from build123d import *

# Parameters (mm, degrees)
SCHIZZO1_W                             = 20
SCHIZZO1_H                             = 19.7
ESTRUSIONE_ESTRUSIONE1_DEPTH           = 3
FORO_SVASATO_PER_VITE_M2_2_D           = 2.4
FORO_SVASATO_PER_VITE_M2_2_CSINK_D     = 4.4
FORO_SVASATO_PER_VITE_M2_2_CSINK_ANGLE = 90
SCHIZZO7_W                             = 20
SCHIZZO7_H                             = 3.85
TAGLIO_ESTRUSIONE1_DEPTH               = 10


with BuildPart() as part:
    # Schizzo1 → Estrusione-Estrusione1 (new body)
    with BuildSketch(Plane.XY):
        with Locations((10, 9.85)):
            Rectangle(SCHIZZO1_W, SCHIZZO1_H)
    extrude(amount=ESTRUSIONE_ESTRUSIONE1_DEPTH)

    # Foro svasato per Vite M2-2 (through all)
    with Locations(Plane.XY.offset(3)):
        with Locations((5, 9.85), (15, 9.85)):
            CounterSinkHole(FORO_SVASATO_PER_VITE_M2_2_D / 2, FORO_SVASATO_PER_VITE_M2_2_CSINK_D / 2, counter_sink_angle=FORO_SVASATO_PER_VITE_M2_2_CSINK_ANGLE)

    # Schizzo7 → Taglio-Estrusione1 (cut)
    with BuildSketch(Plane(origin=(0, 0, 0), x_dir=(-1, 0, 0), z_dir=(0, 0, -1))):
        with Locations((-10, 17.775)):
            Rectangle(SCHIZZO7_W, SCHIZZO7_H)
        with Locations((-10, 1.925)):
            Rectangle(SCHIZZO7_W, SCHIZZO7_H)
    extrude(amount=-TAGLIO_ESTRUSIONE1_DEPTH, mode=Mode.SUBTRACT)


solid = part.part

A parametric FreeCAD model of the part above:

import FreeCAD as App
import Part
import Sketcher

V = App.Vector
Q = App.Units.Quantity


def add_polygon(sketch, points):
    """Adds a closed chain of lines whose ends are joined by coincident constraints."""
    first, n = sketch.GeometryCount, len(points)
    for a, b in zip(points, points[1:] + points[:1]):
        sketch.addGeometry(Part.LineSegment(App.Vector(*a, 0), App.Vector(*b, 0)), False)
    for i in range(n):
        sketch.addConstraint(Sketcher.Constraint("Coincident", first + i, 2, first + (i + 1) % n, 1))

doc = App.newDocument("Part")
body = doc.addObject("PartDesign::Body", "Body")

# Sketch on XY plane
sketch1 = doc.addObject("Sketcher::SketchObject", "Sketch")
body.addObject(sketch1)
sketch1.AttachmentSupport = (doc.XY_Plane, [""])
sketch1.MapMode = "FlatFace"
add_polygon(sketch1, [(0, 20), (0, 0), (20, 0), (20, 20)])  # lines 0-3
sketch1.addConstraint([
    Sketcher.Constraint("Vertical", 0),
    Sketcher.Constraint("Horizontal", 1),
    Sketcher.Constraint("Vertical", 2),
    Sketcher.Constraint("Horizontal", 3),
    Sketcher.Constraint("Coincident", 0, 2, -1, 1),
    Sketcher.Constraint("DistanceX", 1, 1, 1, 2, Q("20 mm")),
    Sketcher.Constraint("DistanceY", 0, 2, 0, 1, Q("19.7 mm")),
])
pad1 = doc.addObject("PartDesign::Pad", "Pad")
body.addObject(pad1)
pad1.Profile = sketch1
pad1.Length = 3

# Sketch on XY plane
sketch2 = doc.addObject("Sketcher::SketchObject", "Sketch001")
body.addObject(sketch2)
sketch2.AttachmentSupport = (doc.XY_Plane, [""])
sketch2.MapMode = "FlatFace"
sketch2.AttachmentOffset = App.Placement(V(0, 0, 3), App.Rotation())
sketch2.addGeometry([
    Part.Circle(V(5, 9.8, 0), V(0, 0, 1), 1.2),
    Part.Circle(V(15, 9.8, 0), V(0, 0, 1), 1.2),
], False)
sketch2.addConstraint([
    Sketcher.Constraint("Equal", 0, 1),
    Sketcher.Constraint("Horizontal", 0, 3, 1, 3),
    Sketcher.Constraint("Diameter", 0, Q("2.4 mm")),
    Sketcher.Constraint("DistanceX", -1, 1, 0, 3, Q("5 mm")),
    Sketcher.Constraint("DistanceX", -1, 1, 1, 3, Q("15 mm")),
    Sketcher.Constraint("DistanceY", -1, 1, 0, 3, Q("9.85 mm")),
])
doc.recompute()
hole = doc.addObject("PartDesign::Hole", "Hole")
body.addObject(hole)
hole.Profile = sketch2
hole.ThreadType = "None"
hole.Diameter = 2.4
hole.DepthType = "ThroughAll"
hole.HoleCutType = "Countersink"
hole.HoleCutDiameter = 4.4
hole.HoleCutCountersinkAngle = 90

# Sketch on XY plane
sketch3 = doc.addObject("Sketcher::SketchObject", "Sketch002")
body.addObject(sketch3)
sketch3.AttachmentSupport = (doc.XY_Plane, [""])
sketch3.MapMode = "FlatFace"
add_polygon(sketch3, [(20, 19.7), (20, 15.8), (0, 15.8), (0, 19.7)])  # lines 0-3
add_polygon(sketch3, [(20, 3.9), (20, 0), (0, 0), (0, 3.9)])  # lines 4-7
sketch3.addConstraint([
    Sketcher.Constraint("Vertical", 0),
    Sketcher.Constraint("Horizontal", 1),
    Sketcher.Constraint("Vertical", 2),
    Sketcher.Constraint("Horizontal", 3),
    Sketcher.Constraint("Vertical", 4),
    Sketcher.Constraint("Horizontal", 5),
    Sketcher.Constraint("Vertical", 6),
    Sketcher.Constraint("Horizontal", 7),
    Sketcher.Constraint("Coincident", 5, 2, -1, 1),
    Sketcher.Constraint("PointOnObject", 1, 2, -2),
    Sketcher.Constraint("Vertical", 3, 2, 4, 2),
    Sketcher.Constraint("Equal", 2, 4),
    Sketcher.Constraint("DistanceX", 1, 2, 1, 1, Q("20 mm")),
    Sketcher.Constraint("DistanceY", 6, 2, 1, 2, Q("12 mm")),
    Sketcher.Constraint("DistanceY", 0, 2, 0, 1, Q("3.85 mm")),
])
pocket1 = doc.addObject("PartDesign::Pocket", "Pocket")
body.addObject(pocket1)
pocket1.Profile = sketch3
pocket1.Length = 10
pocket1.Reversed = True

doc.recompute()
